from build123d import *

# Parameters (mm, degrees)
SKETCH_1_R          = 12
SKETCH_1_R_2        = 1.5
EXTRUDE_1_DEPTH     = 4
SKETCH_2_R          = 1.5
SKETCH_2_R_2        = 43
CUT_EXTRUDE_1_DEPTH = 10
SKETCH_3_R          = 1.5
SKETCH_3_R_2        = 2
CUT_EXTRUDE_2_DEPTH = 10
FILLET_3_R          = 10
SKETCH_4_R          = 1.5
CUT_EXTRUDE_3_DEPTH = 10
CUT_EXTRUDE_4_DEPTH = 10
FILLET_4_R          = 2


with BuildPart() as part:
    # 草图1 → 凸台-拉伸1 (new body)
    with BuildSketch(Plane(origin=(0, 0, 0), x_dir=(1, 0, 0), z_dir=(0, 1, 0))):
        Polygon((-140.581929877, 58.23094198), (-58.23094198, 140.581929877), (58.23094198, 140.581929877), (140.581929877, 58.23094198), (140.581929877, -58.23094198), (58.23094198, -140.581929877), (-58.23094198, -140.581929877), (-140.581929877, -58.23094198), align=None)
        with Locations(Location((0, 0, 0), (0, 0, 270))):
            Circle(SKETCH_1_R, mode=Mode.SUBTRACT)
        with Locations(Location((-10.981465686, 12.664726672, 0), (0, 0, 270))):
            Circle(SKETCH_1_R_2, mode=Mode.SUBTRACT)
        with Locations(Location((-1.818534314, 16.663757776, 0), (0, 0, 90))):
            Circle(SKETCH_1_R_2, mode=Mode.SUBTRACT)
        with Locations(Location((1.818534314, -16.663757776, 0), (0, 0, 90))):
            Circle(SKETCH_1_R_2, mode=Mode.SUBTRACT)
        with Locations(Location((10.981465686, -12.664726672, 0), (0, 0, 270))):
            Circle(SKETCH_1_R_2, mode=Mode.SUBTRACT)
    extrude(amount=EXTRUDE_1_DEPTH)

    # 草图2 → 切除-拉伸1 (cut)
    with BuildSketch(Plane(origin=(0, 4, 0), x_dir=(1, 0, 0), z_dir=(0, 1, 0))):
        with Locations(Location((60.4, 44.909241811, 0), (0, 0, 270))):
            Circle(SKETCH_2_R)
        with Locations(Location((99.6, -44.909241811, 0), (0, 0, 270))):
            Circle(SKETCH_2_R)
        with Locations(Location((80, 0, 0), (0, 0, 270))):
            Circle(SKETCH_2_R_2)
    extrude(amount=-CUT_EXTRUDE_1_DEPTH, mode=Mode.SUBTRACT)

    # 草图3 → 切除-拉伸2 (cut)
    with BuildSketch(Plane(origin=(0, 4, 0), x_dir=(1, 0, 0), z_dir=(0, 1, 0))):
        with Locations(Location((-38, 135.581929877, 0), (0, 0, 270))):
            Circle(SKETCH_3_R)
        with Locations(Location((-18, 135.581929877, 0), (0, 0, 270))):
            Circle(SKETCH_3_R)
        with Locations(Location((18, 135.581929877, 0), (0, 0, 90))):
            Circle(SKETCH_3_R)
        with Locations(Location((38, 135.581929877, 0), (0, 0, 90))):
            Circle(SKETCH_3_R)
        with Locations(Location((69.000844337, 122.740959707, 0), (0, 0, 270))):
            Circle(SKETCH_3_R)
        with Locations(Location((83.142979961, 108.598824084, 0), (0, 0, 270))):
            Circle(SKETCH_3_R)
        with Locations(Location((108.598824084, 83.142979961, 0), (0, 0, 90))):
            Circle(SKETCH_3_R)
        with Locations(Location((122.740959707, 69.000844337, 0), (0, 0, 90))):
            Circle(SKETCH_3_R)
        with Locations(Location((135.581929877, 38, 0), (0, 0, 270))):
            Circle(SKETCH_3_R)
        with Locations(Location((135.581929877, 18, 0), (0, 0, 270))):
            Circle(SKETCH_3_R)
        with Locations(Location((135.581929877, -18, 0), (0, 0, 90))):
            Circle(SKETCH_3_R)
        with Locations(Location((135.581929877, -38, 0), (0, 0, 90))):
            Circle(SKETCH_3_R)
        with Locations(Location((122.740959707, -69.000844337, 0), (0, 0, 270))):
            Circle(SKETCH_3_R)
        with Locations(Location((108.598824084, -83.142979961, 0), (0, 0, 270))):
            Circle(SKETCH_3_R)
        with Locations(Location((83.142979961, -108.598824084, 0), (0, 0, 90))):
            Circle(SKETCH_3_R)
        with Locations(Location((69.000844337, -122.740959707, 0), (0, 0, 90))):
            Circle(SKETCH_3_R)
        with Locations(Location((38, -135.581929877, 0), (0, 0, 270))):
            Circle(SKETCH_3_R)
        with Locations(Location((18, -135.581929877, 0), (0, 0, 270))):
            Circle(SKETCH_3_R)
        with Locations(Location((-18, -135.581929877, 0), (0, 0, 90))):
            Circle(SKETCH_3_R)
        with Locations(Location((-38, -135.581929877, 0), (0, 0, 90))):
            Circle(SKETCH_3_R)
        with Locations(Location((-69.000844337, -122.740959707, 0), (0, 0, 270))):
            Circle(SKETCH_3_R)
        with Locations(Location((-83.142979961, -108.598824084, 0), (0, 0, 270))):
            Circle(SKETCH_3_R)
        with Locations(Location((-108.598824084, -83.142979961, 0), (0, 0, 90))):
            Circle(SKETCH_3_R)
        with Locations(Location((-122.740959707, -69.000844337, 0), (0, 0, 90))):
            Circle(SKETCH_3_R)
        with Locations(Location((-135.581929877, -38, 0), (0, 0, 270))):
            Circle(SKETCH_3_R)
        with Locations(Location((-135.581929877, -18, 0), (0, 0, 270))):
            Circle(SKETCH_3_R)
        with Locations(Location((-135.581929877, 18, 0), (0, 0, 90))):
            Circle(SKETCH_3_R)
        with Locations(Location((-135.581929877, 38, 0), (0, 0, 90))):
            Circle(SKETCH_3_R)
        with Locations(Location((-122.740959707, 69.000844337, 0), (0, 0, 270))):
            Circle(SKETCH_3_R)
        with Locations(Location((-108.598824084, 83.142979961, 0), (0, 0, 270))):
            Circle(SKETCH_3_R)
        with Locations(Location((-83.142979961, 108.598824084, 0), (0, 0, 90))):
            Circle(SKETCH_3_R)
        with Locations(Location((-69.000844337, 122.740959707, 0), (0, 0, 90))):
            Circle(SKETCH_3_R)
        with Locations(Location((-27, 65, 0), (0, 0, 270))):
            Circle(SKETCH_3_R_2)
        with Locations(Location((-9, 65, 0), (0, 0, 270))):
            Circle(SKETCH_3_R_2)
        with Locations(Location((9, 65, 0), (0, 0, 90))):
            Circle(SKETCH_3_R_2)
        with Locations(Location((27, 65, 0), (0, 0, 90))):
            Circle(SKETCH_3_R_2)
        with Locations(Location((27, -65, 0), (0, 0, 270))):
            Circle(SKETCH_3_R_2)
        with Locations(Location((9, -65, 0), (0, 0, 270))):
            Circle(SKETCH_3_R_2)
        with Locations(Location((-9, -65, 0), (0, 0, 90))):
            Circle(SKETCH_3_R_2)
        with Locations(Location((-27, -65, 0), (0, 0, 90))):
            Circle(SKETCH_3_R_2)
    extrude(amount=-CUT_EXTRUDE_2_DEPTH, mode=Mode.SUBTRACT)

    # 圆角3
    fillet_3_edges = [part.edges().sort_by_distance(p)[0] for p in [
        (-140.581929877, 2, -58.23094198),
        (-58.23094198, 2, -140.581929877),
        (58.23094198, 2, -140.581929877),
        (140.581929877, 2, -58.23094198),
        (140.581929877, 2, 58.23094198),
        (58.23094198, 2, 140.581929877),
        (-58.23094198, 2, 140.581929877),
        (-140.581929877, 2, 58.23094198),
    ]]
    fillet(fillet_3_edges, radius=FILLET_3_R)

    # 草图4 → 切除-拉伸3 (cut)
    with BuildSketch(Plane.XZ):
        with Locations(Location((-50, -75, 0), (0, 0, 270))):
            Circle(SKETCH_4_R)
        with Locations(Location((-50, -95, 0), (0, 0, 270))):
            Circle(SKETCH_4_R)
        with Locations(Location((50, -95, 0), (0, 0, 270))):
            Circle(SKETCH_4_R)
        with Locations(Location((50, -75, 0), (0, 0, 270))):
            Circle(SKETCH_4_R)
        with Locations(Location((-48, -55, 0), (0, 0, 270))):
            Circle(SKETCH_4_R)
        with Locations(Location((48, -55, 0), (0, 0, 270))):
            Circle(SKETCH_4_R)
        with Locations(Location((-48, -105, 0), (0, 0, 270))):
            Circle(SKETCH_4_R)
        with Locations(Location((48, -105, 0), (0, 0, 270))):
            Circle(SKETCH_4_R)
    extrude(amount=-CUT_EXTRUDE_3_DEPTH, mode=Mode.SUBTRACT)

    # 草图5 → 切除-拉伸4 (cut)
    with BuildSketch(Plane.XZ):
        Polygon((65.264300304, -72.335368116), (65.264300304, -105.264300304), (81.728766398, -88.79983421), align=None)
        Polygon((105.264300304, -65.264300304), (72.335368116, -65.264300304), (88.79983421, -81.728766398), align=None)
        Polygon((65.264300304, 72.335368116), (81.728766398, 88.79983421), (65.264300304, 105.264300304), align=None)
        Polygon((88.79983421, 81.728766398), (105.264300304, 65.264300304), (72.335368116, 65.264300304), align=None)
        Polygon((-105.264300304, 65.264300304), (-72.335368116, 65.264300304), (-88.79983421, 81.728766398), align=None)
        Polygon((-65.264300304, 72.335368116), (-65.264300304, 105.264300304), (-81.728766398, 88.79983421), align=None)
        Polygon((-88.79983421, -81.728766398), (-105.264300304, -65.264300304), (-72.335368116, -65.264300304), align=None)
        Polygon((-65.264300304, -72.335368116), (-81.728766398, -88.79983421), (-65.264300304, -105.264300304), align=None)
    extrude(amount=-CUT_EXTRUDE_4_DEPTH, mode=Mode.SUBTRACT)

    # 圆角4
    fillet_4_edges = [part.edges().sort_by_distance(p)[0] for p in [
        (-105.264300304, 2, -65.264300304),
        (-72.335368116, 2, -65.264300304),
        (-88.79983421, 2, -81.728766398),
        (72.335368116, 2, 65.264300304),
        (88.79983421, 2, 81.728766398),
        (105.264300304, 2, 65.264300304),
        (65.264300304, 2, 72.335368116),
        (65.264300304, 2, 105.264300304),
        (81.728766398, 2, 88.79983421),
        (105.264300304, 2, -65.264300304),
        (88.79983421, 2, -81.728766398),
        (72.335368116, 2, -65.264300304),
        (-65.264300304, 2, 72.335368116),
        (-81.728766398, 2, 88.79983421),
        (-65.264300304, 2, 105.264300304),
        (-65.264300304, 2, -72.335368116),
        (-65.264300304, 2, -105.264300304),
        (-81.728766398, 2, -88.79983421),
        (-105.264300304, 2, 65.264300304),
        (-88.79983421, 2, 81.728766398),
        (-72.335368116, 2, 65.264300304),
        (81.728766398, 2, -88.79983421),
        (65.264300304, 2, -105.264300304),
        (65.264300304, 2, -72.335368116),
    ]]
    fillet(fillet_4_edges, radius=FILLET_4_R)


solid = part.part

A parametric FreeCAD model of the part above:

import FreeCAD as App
import Part
import Sketcher

V = App.Vector


def edges_at(feature, points):
    """Names of the edges that pass closest to the given points."""
    edges = feature.Shape.Edges
    near = lambda p: min(range(len(edges)), key=lambda i: edges[i].distToShape(Part.Vertex(*p))[0])
    return sorted({f"Edge{near(p) + 1}" for p in points})

doc = App.newDocument("Part")
params = doc.addObject("Spreadsheet::Sheet", "Params")
for row, (alias, value) in enumerate([
    ("sketch1_diameter", "3 mm"),
    ("sketch1_diameter2", "24 mm"),
    ("pad1_length", "4 mm"),
    ("sketch2_diameter", "3 mm"),
    ("sketch2_diameter2", "86 mm"),
    ("pocket1_length", "10 mm"),
    ("sketch3_diameter", "3 mm"),
    ("sketch3_diameter2", "4 mm"),
    ("pocket2_length", "10 mm"),
    ("fillet_radius", "10 mm"),
    ("sketch4_diameter", "3 mm"),
    ("pocket3_length", "10 mm"),
    ("pocket4_length", "10 mm"),
    ("fillet2_radius", "2 mm"),
], start=1):
    params.set(f"A{row}", alias)
    params.set(f"B{row}", "=" + value)
    params.setAlias(f"B{row}", alias)

body = doc.addObject("PartDesign::Body", "Body")

sketch1 = body.newObject("Sketcher::SketchObject", "Sketch")
sketch1.AttachmentSupport = (doc.getObject("XZ_Plane"), [""])
sketch1.MapMode = "FlatFace"
sketch1.addGeometry(Part.LineSegment(V(-58.2, -140.6, 0), V(-140.6, -58.2, 0)), False)
sketch1.addGeometry(Part.LineSegment(V(-140.6, -58.2, 0), V(-140.6, 58.2, 0)), False)
sketch1.addGeometry(Part.LineSegment(V(-140.6, 58.2, 0), V(-58.2, 140.6, 0)), False)
sketch1.addGeometry(Part.LineSegment(V(-58.2, 140.6, 0), V(58.2, 140.6, 0)), False)
sketch1.addGeometry(Part.LineSegment(V(58.2, 140.6, 0), V(140.6, 58.2, 0)), False)
sketch1.addGeometry(Part.LineSegment(V(140.6, 58.2, 0), V(140.6, -58.2, 0)), False)
sketch1.addGeometry(Part.LineSegment(V(140.6, -58.2, 0), V(58.2, -140.6, 0)), False)
sketch1.addGeometry(Part.LineSegment(V(58.2, -140.6, 0), V(-58.2, -140.6, 0)), False)
sketch1.addGeometry(Part.Circle(V(11, 12.7, 0), V(0, 0, 1), 1.5), False)
sketch1.addGeometry(Part.Circle(V(1.8, 16.7, 0), V(0, 0, 1), 1.5), False)
sketch1.addGeometry(Part.Circle(V(0, 0, 0), V(0, 0, 1), 12), False)
sketch1.addGeometry(Part.Circle(V(-1.8, -16.7, 0), V(0, 0, 1), 1.5), False)
sketch1.addGeometry(Part.Circle(V(-11, -12.7, 0), V(0, 0, 1), 1.5), False)
sketch1.addConstraint(Sketcher.Constraint("Coincident", 0, 2, 1, 1))
sketch1.addConstraint(Sketcher.Constraint("Coincident", 1, 2, 2, 1))
sketch1.addConstraint(Sketcher.Constraint("Coincident", 2, 2, 3, 1))
sketch1.addConstraint(Sketcher.Constraint("Coincident", 3, 2, 4, 1))
sketch1.addConstraint(Sketcher.Constraint("Coincident", 4, 2, 5, 1))
sketch1.addConstraint(Sketcher.Constraint("Coincident", 5, 2, 6, 1))
sketch1.addConstraint(Sketcher.Constraint("Coincident", 6, 2, 7, 1))
sketch1.addConstraint(Sketcher.Constraint("Coincident", 7, 2, 0, 1))
sketch1.addConstraint(Sketcher.Constraint("Vertical", 1))
sketch1.addConstraint(Sketcher.Constraint("Horizontal", 3))
sketch1.addConstraint(Sketcher.Constraint("Vertical", 5))
sketch1.addConstraint(Sketcher.Constraint("Horizontal", 7))
sketch1.addConstraint(Sketcher.Constraint("Coincident", 10, 3, -1, 1))
sketch1.addConstraint(Sketcher.Constraint("Equal", 8, 9))
sketch1.addConstraint(Sketcher.Constraint("Equal", 9, 11))
sketch1.addConstraint(Sketcher.Constraint("Equal", 11, 12))
sketch1.addConstraint(Sketcher.Constraint("Symmetric", 9, 3, 11, 3, -1, 1))
sketch1.addConstraint(Sketcher.Constraint("Symmetric", 8, 3, 12, 3, -1, 1))
sketch1.addConstraint(Sketcher.Constraint("Symmetric", 0, 2, 4, 2, -1, 1))
sketch1.addConstraint(Sketcher.Constraint("Symmetric", 2, 2, 6, 2, -1, 1))
sketch1.addConstraint(Sketcher.Constraint("Perpendicular", 0, 2))
sketch1.addConstraint(Sketcher.Constraint("Perpendicular", 2, 4))
sketch1.addConstraint(Sketcher.Constraint("Perpendicular", 4, 6))
sketch1.addConstraint(Sketcher.Constraint("Horizontal", 1, 2, 4, 2))
sketch1.addConstraint(Sketcher.Constraint("Vertical", 3, 2, 6, 2))
sketch1.addConstraint(Sketcher.Constraint("Equal", 7, 1))
sketch1.addConstraint(Sketcher.Constraint("Diameter", 8, 3.0))
sketch1.addConstraint(Sketcher.Constraint("Diameter", 10, 24.0))
sketch1.addConstraint(Sketcher.Constraint("DistanceX", 11, 3, 8, 3, 12.8))
sketch1.addConstraint(Sketcher.Constraint("DistanceY", 0, 2, 9, 3, 74.8947))
sketch1.addConstraint(Sketcher.Constraint("DistanceX", 3, 1, 3, 2, 116.461884))
sketch1.addConstraint(Sketcher.Constraint("DistanceX", 0, 2, -1, 1, 140.58193))
sketch1.addConstraint(Sketcher.Constraint("DistanceX", 9, 3, 8, 3, 9.162931))
sketch1.addConstraint(Sketcher.Constraint("DistanceY", 8, 3, 9, 3, 3.999031))
sketch1.setExpression("Constraints[26]", "Params.sketch1_diameter")
sketch1.setExpression("Constraints[27]", "Params.sketch1_diameter2")
pad1 = body.newObject("PartDesign::Pad", "Pad")
pad1.Profile = sketch1
pad1.setExpression("Length", "Params.pad1_length")
pad1.Reversed = True

sketch2 = body.newObject("Sketcher::SketchObject", "Sketch001")
sketch2.AttachmentSupport = (doc.getObject("XZ_Plane"), [""])
sketch2.MapMode = "FlatFace"
sketch2.AttachmentOffset = App.Placement(V(0, 0, -4), App.Rotation())
sketch2.addGeometry(Part.Circle(V(60.4, -44.9, 0), V(0, 0, 1), 1.5), False)
sketch2.addGeometry(Part.Circle(V(99.6, 44.9, 0), V(0, 0, 1), 1.5), False)
sketch2.addGeometry(Part.Circle(V(80, 0, 0), V(0, 0, 1), 43), False)
sketch2.addConstraint(Sketcher.Constraint("Equal", 0, 1))
sketch2.addConstraint(Sketcher.Constraint("PointOnObject", 2, 3, -1))
sketch2.addConstraint(Sketcher.Constraint("Diameter", 0, 3.0))
sketch2.addConstraint(Sketcher.Constraint("Diameter", 2, 86.0))
sketch2.addConstraint(Sketcher.Constraint("DistanceX", -1, 1, 2, 3, 80.0))
sketch2.addConstraint(Sketcher.Constraint("DistanceX", -1, 1, 0, 3, 60.4))
sketch2.addConstraint(Sketcher.Constraint("DistanceX", -1, 1, 1, 3, 99.6))
sketch2.addConstraint(Sketcher.Constraint("DistanceY", 0, 3, -1, 1, 44.909242))
sketch2.addConstraint(Sketcher.Constraint("DistanceY", -1, 1, 1, 3, 44.909242))
sketch2.setExpression("Constraints[2]", "Params.sketch2_diameter")
sketch2.setExpression("Constraints[3]", "Params.sketch2_diameter2")
pocket1 = body.newObject("PartDesign::Pocket", "Pocket")
pocket1.Profile = sketch2
pocket1.setExpression("Length", "Params.pocket1_length")
pocket1.Reversed = True

sketch3 = body.newObject("Sketcher::SketchObject", "Sketch002")
sketch3.AttachmentSupport = (doc.getObject("XZ_Plane"), [""])
sketch3.MapMode = "FlatFace"
sketch3.AttachmentOffset = App.Placement(V(0, 0, -4), App.Rotation())
sketch3.addGeometry(Part.Circle(V(-38, -135.6, 0), V(0, 0, 1), 1.5), False)
sketch3.addGeometry(Part.Circle(V(-18, -135.6, 0), V(0, 0, 1), 1.5), False)
sketch3.addGeometry(Part.Circle(V(18, -135.6, 0), V(0, 0, 1), 1.5), False)
sketch3.addGeometry(Part.Circle(V(38, -135.6, 0), V(0, 0, 1), 1.5), False)
sketch3.addGeometry(Part.Circle(V(69, -122.7, 0), V(0, 0, 1), 1.5), False)
sketch3.addGeometry(Part.Circle(V(83.1, -108.6, 0), V(0, 0, 1), 1.5), False)
sketch3.addGeometry(Part.Circle(V(108.6, -83.1, 0), V(0, 0, 1), 1.5), False)
sketch3.addGeometry(Part.Circle(V(122.7, -69, 0), V(0, 0, 1), 1.5), False)
sketch3.addGeometry(Part.Circle(V(135.6, -38, 0), V(0, 0, 1), 1.5), False)
sketch3.addGeometry(Part.Circle(V(135.6, -18, 0), V(0, 0, 1), 1.5), False)
sketch3.addGeometry(Part.Circle(V(135.6, 18, 0), V(0, 0, 1), 1.5), False)
sketch3.addGeometry(Part.Circle(V(135.6, 38, 0), V(0, 0, 1), 1.5), False)
sketch3.addGeometry(Part.Circle(V(122.7, 69, 0), V(0, 0, 1), 1.5), False)
sketch3.addGeometry(Part.Circle(V(108.6, 83.1, 0), V(0, 0, 1), 1.5), False)
sketch3.addGeometry(Part.Circle(V(83.1, 108.6, 0), V(0, 0, 1), 1.5), False)
sketch3.addGeometry(Part.Circle(V(69, 122.7, 0), V(0, 0, 1), 1.5), False)
sketch3.addGeometry(Part.Circle(V(38, 135.6, 0), V(0, 0, 1), 1.5), False)
sketch3.addGeometry(Part.Circle(V(18, 135.6, 0), V(0, 0, 1), 1.5), False)
sketch3.addGeometry(Part.Circle(V(-18, 135.6, 0), V(0, 0, 1), 1.5), False)
sketch3.addGeometry(Part.Circle(V(-38, 135.6, 0), V(0, 0, 1), 1.5), False)
sketch3.addGeometry(Part.Circle(V(-69, 122.7, 0), V(0, 0, 1), 1.5), False)
sketch3.addGeometry(Part.Circle(V(-83.1, 108.6, 0), V(0, 0, 1), 1.5), False)
sketch3.addGeometry(Part.Circle(V(-108.6, 83.1, 0), V(0, 0, 1), 1.5), False)
sketch3.addGeometry(Part.Circle(V(-122.7, 69, 0), V(0, 0, 1), 1.5), False)
sketch3.addGeometry(Part.Circle(V(-135.6, 38, 0), V(0, 0, 1), 1.5), False)
sketch3.addGeometry(Part.Circle(V(-135.6, 18, 0), V(0, 0, 1), 1.5), False)
sketch3.addGeometry(Part.Circle(V(-135.6, -18, 0), V(0, 0, 1), 1.5), False)
sketch3.addGeometry(Part.Circle(V(-135.6, -38, 0), V(0, 0, 1), 1.5), False)
sketch3.addGeometry(Part.Circle(V(-122.7, -69, 0), V(0, 0, 1), 1.5), False)
sketch3.addGeometry(Part.Circle(V(-108.6, -83.1, 0), V(0, 0, 1), 1.5), False)
sketch3.addGeometry(Part.Circle(V(-83.1, -108.6, 0), V(0, 0, 1), 1.5), False)
sketch3.addGeometry(Part.Circle(V(-69, -122.7, 0), V(0, 0, 1), 1.5), False)
sketch3.addGeometry(Part.Circle(V(-27, -65, 0), V(0, 0, 1), 2), False)
sketch3.addGeometry(Part.Circle(V(-9, -65, 0), V(0, 0, 1), 2), False)
sketch3.addGeometry(Part.Circle(V(9, -65, 0), V(0, 0, 1), 2), False)
sketch3.addGeometry(Part.Circle(V(27, -65, 0), V(0, 0, 1), 2), False)
sketch3.addGeometry(Part.Circle(V(27, 65, 0), V(0, 0, 1), 2), False)
sketch3.addGeometry(Part.Circle(V(9, 65, 0), V(0, 0, 1), 2), False)
sketch3.addGeometry(Part.Circle(V(-9, 65, 0), V(0, 0, 1), 2), False)
sketch3.addGeometry(Part.Circle(V(-27, 65, 0), V(0, 0, 1), 2), False)
sketch3.addConstraint(Sketcher.Constraint("Equal", 0, 1))
sketch3.addConstraint(Sketcher.Constraint("Equal", 1, 2))
sketch3.addConstraint(Sketcher.Constraint("Equal", 2, 3))
sketch3.addConstraint(Sketcher.Constraint("Equal", 3, 4))
sketch3.addConstraint(Sketcher.Constraint("Equal", 4, 5))
sketch3.addConstraint(Sketcher.Constraint("Equal", 5, 6))
sketch3.addConstraint(Sketcher.Constraint("Equal", 6, 7))
sketch3.addConstraint(Sketcher.Constraint("Equal", 7, 8))
sketch3.addConstraint(Sketcher.Constraint("Equal", 8, 9))
sketch3.addConstraint(Sketcher.Constraint("Equal", 9, 10))
sketch3.addConstraint(Sketcher.Constraint("Equal", 10, 11))
sketch3.addConstraint(Sketcher.Constraint("Equal", 11, 12))
sketch3.addConstraint(Sketcher.Constraint("Equal", 12, 13))
sketch3.addConstraint(Sketcher.Constraint("Equal", 13, 14))
sketch3.addConstraint(Sketcher.Constraint("Equal", 14, 15))
sketch3.addConstraint(Sketcher.Constraint("Equal", 15, 16))
sketch3.addConstraint(Sketcher.Constraint("Equal", 16, 17))
sketch3.addConstraint(Sketcher.Constraint("Equal", 17, 18))
sketch3.addConstraint(Sketcher.Constraint("Equal", 18, 19))
sketch3.addConstraint(Sketcher.Constraint("Equal", 19, 20))
sketch3.addConstraint(Sketcher.Constraint("Equal", 20, 21))
sketch3.addConstraint(Sketcher.Constraint("Equal", 21, 22))
sketch3.addConstraint(Sketcher.Constraint("Equal", 22, 23))
sketch3.addConstraint(Sketcher.Constraint("Equal", 23, 24))
sketch3.addConstraint(Sketcher.Constraint("Equal", 24, 25))
sketch3.addConstraint(Sketcher.Constraint("Equal", 25, 26))
sketch3.addConstraint(Sketcher.Constraint("Equal", 26, 27))
sketch3.addConstraint(Sketcher.Constraint("Equal", 27, 28))
sketch3.addConstraint(Sketcher.Constraint("Equal", 28, 29))
sketch3.addConstraint(Sketcher.Constraint("Equal", 29, 30))
sketch3.addConstraint(Sketcher.Constraint("Equal", 30, 31))
sketch3.addConstraint(Sketcher.Constraint("Equal", 32, 33))
sketch3.addConstraint(Sketcher.Constraint("Equal", 33, 34))
sketch3.addConstraint(Sketcher.Constraint("Equal", 34, 35))
sketch3.addConstraint(Sketcher.Constraint("Equal", 35, 36))
sketch3.addConstraint(Sketcher.Constraint("Equal", 36, 37))
sketch3.addConstraint(Sketcher.Constraint("Equal", 37, 38))
sketch3.addConstraint(Sketcher.Constraint("Equal", 38, 39))
sketch3.addConstraint(Sketcher.Constraint("Symmetric", 0, 3, 16, 3, -1, 1))
sketch3.addConstraint(Sketcher.Constraint("Symmetric", 1, 3, 17, 3, -1, 1))
sketch3.addConstraint(Sketcher.Constraint("Symmetric", 2, 3, 18, 3, -1, 1))
sketch3.addConstraint(Sketcher.Constraint("Symmetric", 3, 3, 19, 3, -1, 1))
sketch3.addConstraint(Sketcher.Constraint("Symmetric", 4, 3, 20, 3, -1, 1))
sketch3.addConstraint(Sketcher.Constraint("Symmetric", 5, 3, 21, 3, -1, 1))
sketch3.addConstraint(Sketcher.Constraint("Symmetric", 6, 3, 22, 3, -1, 1))
sketch3.addConstraint(Sketcher.Constraint("Symmetric", 7, 3, 23, 3, -1, 1))
sketch3.addConstraint(Sketcher.Constraint("Symmetric", 8, 3, 24, 3, -1, 1))
sketch3.addConstraint(Sketcher.Constraint("Symmetric", 9, 3, 25, 3, -1, 1))
sketch3.addConstraint(Sketcher.Constraint("Symmetric", 10, 3, 26, 3, -1, 1))
sketch3.addConstraint(Sketcher.Constraint("Symmetric", 11, 3, 27, 3, -1, 1))
sketch3.addConstraint(Sketcher.Constraint("Symmetric", 12, 3, 28, 3, -1, 1))
sketch3.addConstraint(Sketcher.Constraint("Symmetric", 13, 3, 29, 3, -1, 1))
sketch3.addConstraint(Sketcher.Constraint("Symmetric", 14, 3, 30, 3, -1, 1))
sketch3.addConstraint(Sketcher.Constraint("Symmetric", 15, 3, 31, 3, -1, 1))
sketch3.addConstraint(Sketcher.Constraint("Symmetric", 32, 3, 36, 3, -1, 1))
sketch3.addConstraint(Sketcher.Constraint("Symmetric", 33, 3, 37, 3, -1, 1))
sketch3.addConstraint(Sketcher.Constraint("Symmetric", 34, 3, 38, 3, -1, 1))
sketch3.addConstraint(Sketcher.Constraint("Symmetric", 35, 3, 39, 3, -1, 1))
sketch3.addConstraint(Sketcher.Constraint("Symmetric", 1, 3, 2, 3, -2))
sketch3.addConstraint(Sketcher.Constraint("Symmetric", 0, 3, 3, 3, -2))
sketch3.addConstraint(Sketcher.Constraint("Symmetric", 15, 3, 20, 3, -2))
sketch3.addConstraint(Sketcher.Constraint("Symmetric", 14, 3, 21, 3, -2))
sketch3.addConstraint(Sketcher.Constraint("Symmetric", 13, 3, 22, 3, -2))
sketch3.addConstraint(Sketcher.Constraint("Symmetric", 12, 3, 23, 3, -2))
sketch3.addConstraint(Sketcher.Constraint("Symmetric", 11, 3, 24, 3, -2))
sketch3.addConstraint(Sketcher.Constraint("Symmetric", 10, 3, 25, 3, -2))
sketch3.addConstraint(Sketcher.Constraint("Symmetric", 33, 3, 34, 3, -2))
sketch3.addConstraint(Sketcher.Constraint("Symmetric", 32, 3, 35, 3, -2))
sketch3.addConstraint(Sketcher.Constraint("Horizontal", 0, 3, 1, 3))
sketch3.addConstraint(Sketcher.Constraint("Horizontal", 32, 3, 33, 3))
sketch3.addConstraint(Sketcher.Constraint("Vertical", 8, 3, 9, 3))
sketch3.addConstraint(Sketcher.Constraint("Diameter", 0, 3.0))
sketch3.addConstraint(Sketcher.Constraint("Diameter", 32, 4.0))
sketch3.addConstraint(Sketcher.Constraint("DistanceX", 0, 3, -1, 1, 38.0))
sketch3.addConstraint(Sketcher.Constraint("DistanceX", 1, 3, -1, 1, 18.0))
sketch3.addConstraint(Sketcher.Constraint("DistanceY", 8, 3, -1, 1, 38.0))
sketch3.addConstraint(Sketcher.Constraint("DistanceY", 9, 3, -1, 1, 18.0))
sketch3.addConstraint(Sketcher.Constraint("DistanceX", 32, 3, -1, 1, 27.0))
sketch3.addConstraint(Sketcher.Constraint("DistanceY", 32, 3, -1, 1, 65.0))
sketch3.addConstraint(Sketcher.Constraint("DistanceX", 33, 3, -1, 1, 9.0))
sketch3.addConstraint(Sketcher.Constraint("DistanceY", 0, 3, -1, 1, 135.58193))
sketch3.addConstraint(Sketcher.Constraint("DistanceY", 4, 3, -1, 1, 122.74096))
sketch3.addConstraint(Sketcher.Constraint("DistanceX", -1, 1, 5, 3, 83.14298))
sketch3.addConstraint(Sketcher.Constraint("DistanceY", 6, 3, -1, 1, 83.14298))
sketch3.addConstraint(Sketcher.Constraint("DistanceX", -1, 1, 7, 3, 122.74096))
sketch3.addConstraint(Sketcher.Constraint("DistanceX", -1, 1, 8, 3, 135.58193))
sketch3.addConstraint(Sketcher.Constraint("DistanceX", 4, 3, 6, 3, 39.59798))
sketch3.addConstraint(Sketcher.Constraint("DistanceY", 5, 3, 7, 3, 39.59798))
sketch3.addConstraint(Sketcher.Constraint("DistanceY", 7, 3, 12, 3, 138.001689))
sketch3.addConstraint(Sketcher.Constraint("DistanceX", 20, 3, 15, 3, 138.001689))
sketch3.setExpression("Constraints[71]", "Params.sketch3_diameter")
sketch3.setExpression("Constraints[72]", "Params.sketch3_diameter2")
pocket2 = body.newObject("PartDesign::Pocket", "Pocket001")
pocket2.Profile = sketch3
pocket2.setExpression("Length", "Params.pocket2_length")
pocket2.Reversed = True
doc.recompute()

fillet = body.newObject("PartDesign::Fillet", "Fillet")
fillet.Base = (pocket2, edges_at(pocket2, [
    (-140.582, 2, -58.231),
    (-58.231, 2, -140.582),
    (58.231, 2, -140.582),
    (140.582, 2, -58.231),
    (140.582, 2, 58.231),
    (58.231, 2, 140.582),
    (-58.231, 2, 140.582),
    (-140.582, 2, 58.231),
]))
fillet.setExpression("Radius", "Params.fillet_radius")

sketch4 = body.newObject("Sketcher::SketchObject", "Sketch003")
sketch4.AttachmentSupport = (doc.getObject("XZ_Plane"), [""])
sketch4.MapMode = "FlatFace"
sketch4.addGeometry(Part.Circle(V(-50, -75, 0), V(0, 0, 1), 1.5), False)
sketch4.addGeometry(Part.Circle(V(-50, -95, 0), V(0, 0, 1), 1.5), False)
sketch4.addGeometry(Part.Circle(V(50, -95, 0), V(0, 0, 1), 1.5), False)
sketch4.addGeometry(Part.Circle(V(50, -75, 0), V(0, 0, 1), 1.5), False)
sketch4.addGeometry(Part.Circle(V(-48, -55, 0), V(0, 0, 1), 1.5), False)
sketch4.addGeometry(Part.Circle(V(48, -55, 0), V(0, 0, 1), 1.5), False)
sketch4.addGeometry(Part.Circle(V(-48, -105, 0), V(0, 0, 1), 1.5), False)
sketch4.addGeometry(Part.Circle(V(48, -105, 0), V(0, 0, 1), 1.5), False)
sketch4.addConstraint(Sketcher.Constraint("Equal", 0, 1))
sketch4.addConstraint(Sketcher.Constraint("Equal", 1, 2))
sketch4.addConstraint(Sketcher.Constraint("Equal", 2, 3))
sketch4.addConstraint(Sketcher.Constraint("Equal", 3, 4))
sketch4.addConstraint(Sketcher.Constraint("Equal", 4, 5))
sketch4.addConstraint(Sketcher.Constraint("Equal", 5, 6))
sketch4.addConstraint(Sketcher.Constraint("Equal", 6, 7))
sketch4.addConstraint(Sketcher.Constraint("Symmetric", 1, 3, 2, 3, -2))
sketch4.addConstraint(Sketcher.Constraint("Symmetric", 0, 3, 3, 3, -2))
sketch4.addConstraint(Sketcher.Constraint("Symmetric", 4, 3, 5, 3, -2))
sketch4.addConstraint(Sketcher.Constraint("Symmetric", 6, 3, 7, 3, -2))
sketch4.addConstraint(Sketcher.Constraint("Vertical", 0, 3, 1, 3))
sketch4.addConstraint(Sketcher.Constraint("Vertical", 4, 3, 6, 3))
sketch4.addConstraint(Sketcher.Constraint("Diameter", 0, 3.0))
sketch4.addConstraint(Sketcher.Constraint("DistanceX", 0, 3, -1, 1, 50.0))
sketch4.addConstraint(Sketcher.Constraint("DistanceY", 0, 3, -1, 1, 75.0))
sketch4.addConstraint(Sketcher.Constraint("DistanceY", 1, 3, -1, 1, 95.0))
sketch4.addConstraint(Sketcher.Constraint("DistanceX", 4, 3, -1, 1, 48.0))
sketch4.addConstraint(Sketcher.Constraint("DistanceY", 4, 3, -1, 1, 55.0))
sketch4.addConstraint(Sketcher.Constraint("DistanceY", 6, 3, -1, 1, 105.0))
sketch4.setExpression("Constraints[13]", "Params.sketch4_diameter")
pocket3 = body.newObject("PartDesign::Pocket", "Pocket002")
pocket3.Profile = sketch4
pocket3.setExpression("Length", "Params.pocket3_length")

sketch5 = body.newObject("Sketcher::SketchObject", "Sketch004")
sketch5.AttachmentSupport = (doc.getObject("XZ_Plane"), [""])
sketch5.MapMode = "FlatFace"
sketch5.addGeometry(Part.LineSegment(V(65, -72, 0), V(65, -105, 0)), False)
sketch5.addGeometry(Part.LineSegment(V(65, -105, 0), V(82, -89, 0)), False)
sketch5.addGeometry(Part.LineSegment(V(82, -89, 0), V(65, -72, 0)), False)
sketch5.addGeometry(Part.LineSegment(V(105, -65, 0), V(72, -65, 0)), False)
sketch5.addGeometry(Part.LineSegment(V(72, -65, 0), V(89, -82, 0)), False)
sketch5.addGeometry(Part.LineSegment(V(89, -82, 0), V(105, -65, 0)), False)
sketch5.addGeometry(Part.LineSegment(V(65, 72, 0), V(82, 89, 0)), False)
sketch5.addGeometry(Part.LineSegment(V(82, 89, 0), V(65, 105, 0)), False)
sketch5.addGeometry(Part.LineSegment(V(65, 105, 0), V(65, 72, 0)), False)
sketch5.addGeometry(Part.LineSegment(V(105, 65, 0), V(89, 82, 0)), False)
sketch5.addGeometry(Part.LineSegment(V(89, 82, 0), V(72, 65, 0)), False)
sketch5.addGeometry(Part.LineSegment(V(72, 65, 0), V(105, 65, 0)), False)
sketch5.addGeometry(Part.LineSegment(V(-105, 65, 0), V(-72, 65, 0)), False)
sketch5.addGeometry(Part.LineSegment(V(-72, 65, 0), V(-89, 82, 0)), False)
sketch5.addGeometry(Part.LineSegment(V(-89, 82, 0), V(-105, 65, 0)), False)
sketch5.addGeometry(Part.LineSegment(V(-65, 72, 0), V(-65, 105, 0)), False)
sketch5.addGeometry(Part.LineSegment(V(-65, 105, 0), V(-82, 89, 0)), False)
sketch5.addGeometry(Part.LineSegment(V(-82, 89, 0), V(-65, 72, 0)), False)
sketch5.addGeometry(Part.LineSegment(V(-105, -65, 0), V(-89, -82, 0)), False)
sketch5.addGeometry(Part.LineSegment(V(-89, -82, 0), V(-72, -65, 0)), False)
sketch5.addGeometry(Part.LineSegment(V(-72, -65, 0), V(-105, -65, 0)), False)
sketch5.addGeometry(Part.LineSegment(V(-65, -72, 0), V(-82, -89, 0)), False)
sketch5.addGeometry(Part.LineSegment(V(-82, -89, 0), V(-65, -105, 0)), False)
sketch5.addGeometry(Part.LineSegment(V(-65, -105, 0), V(-65, -72, 0)), False)
sketch5.addConstraint(Sketcher.Constraint("Coincident", 0, 2, 1, 1))
sketch5.addConstraint(Sketcher.Constraint("Coincident", 1, 2, 2, 1))
sketch5.addConstraint(Sketcher.Constraint("Coincident", 2, 2, 0, 1))
sketch5.addConstraint(Sketcher.Constraint("Coincident", 3, 2, 4, 1))
sketch5.addConstraint(Sketcher.Constraint("Coincident", 4, 2, 5, 1))
sketch5.addConstraint(Sketcher.Constraint("Coincident", 5, 2, 3, 1))
sketch5.addConstraint(Sketcher.Constraint("Coincident", 6, 2, 7, 1))
sketch5.addConstraint(Sketcher.Constraint("Coincident", 7, 2, 8, 1))
sketch5.addConstraint(Sketcher.Constraint("Coincident", 8, 2, 6, 1))
sketch5.addConstraint(Sketcher.Constraint("Coincident", 9, 2, 10, 1))
sketch5.addConstraint(Sketcher.Constraint("Coincident", 10, 2, 11, 1))
sketch5.addConstraint(Sketcher.Constraint("Coincident", 11, 2, 9, 1))
sketch5.addConstraint(Sketcher.Constraint("Coincident", 12, 2, 13, 1))
sketch5.addConstraint(Sketcher.Constraint("Coincident", 13, 2, 14, 1))
sketch5.addConstraint(Sketcher.Constraint("Coincident", 14, 2, 12, 1))
sketch5.addConstraint(Sketcher.Constraint("Coincident", 15, 2, 16, 1))
sketch5.addConstraint(Sketcher.Constraint("Coincident", 16, 2, 17, 1))
sketch5.addConstraint(Sketcher.Constraint("Coincident", 17, 2, 15, 1))
sketch5.addConstraint(Sketcher.Constraint("Coincident", 18, 2, 19, 1))
sketch5.addConstraint(Sketcher.Constraint("Coincident", 19, 2, 20, 1))
sketch5.addConstraint(Sketcher.Constraint("Coincident", 20, 2, 18, 1))
sketch5.addConstraint(Sketcher.Constraint("Coincident", 21, 2, 22, 1))
sketch5.addConstraint(Sketcher.Constraint("Coincident", 22, 2, 23, 1))
sketch5.addConstraint(Sketcher.Constraint("Coincident", 23, 2, 21, 1))
sketch5.addConstraint(Sketcher.Constraint("Vertical", 0))
sketch5.addConstraint(Sketcher.Constraint("Horizontal", 3))
sketch5.addConstraint(Sketcher.Constraint("Vertical", 8))
sketch5.addConstraint(Sketcher.Constraint("Horizontal", 11))
sketch5.addConstraint(Sketcher.Constraint("Horizontal", 12))
sketch5.addConstraint(Sketcher.Constraint("Vertical", 15))
sketch5.addConstraint(Sketcher.Constraint("Horizontal", 20))
sketch5.addConstraint(Sketcher.Constraint("Vertical", 23))
sketch5.addConstraint(Sketcher.Constraint("Symmetric", 3, 2, 12, 2, -1, 1))
sketch5.addConstraint(Sketcher.Constraint("Symmetric", 4, 2, 13, 2, -1, 1))
sketch5.addConstraint(Sketcher.Constraint("Symmetric", 0, 2, 15, 2, -1, 1))
sketch5.addConstraint(Sketcher.Constraint("Symmetric", 1, 2, 16, 2, -1, 1))
sketch5.addConstraint(Sketcher.Constraint("Symmetric", 9, 2, 18, 2, -1, 1))
sketch5.addConstraint(Sketcher.Constraint("Symmetric", 10, 2, 19, 2, -1, 1))
sketch5.addConstraint(Sketcher.Constraint("Symmetric", 6, 2, 21, 2, -1, 1))
sketch5.addConstraint(Sketcher.Constraint("Symmetric", 7, 2, 22, 2, -1, 1))
sketch5.addConstraint(Sketcher.Constraint("Symmetric", 10, 2, 12, 2, -2))
sketch5.addConstraint(Sketcher.Constraint("Symmetric", 9, 2, 13, 2, -2))
sketch5.addConstraint(Sketcher.Constraint("Symmetric", 7, 2, 15, 2, -2))
sketch5.addConstraint(Sketcher.Constraint("Symmetric", 6, 2, 16, 2, -2))
sketch5.addConstraint(Sketcher.Constraint("Perpendicular", 1, 2))
sketch5.addConstraint(Sketcher.Constraint("Parallel", 2, 4))
sketch5.addConstraint(Sketcher.Constraint("Perpendicular", 4, 5))
sketch5.addConstraint(Sketcher.Constraint("Parallel", 5, 6))
sketch5.addConstraint(Sketcher.Constraint("Perpendicular", 6, 7))
sketch5.addConstraint(Sketcher.Constraint("Parallel", 7, 9))
sketch5.addConstraint(Sketcher.Constraint("Perpendicular", 13, 14))
sketch5.addConstraint(Sketcher.Constraint("Perpendicular", 16, 17))
sketch5.addConstraint(Sketcher.Constraint("Parallel", 17, 18))
sketch5.addConstraint(Sketcher.Constraint("Parallel", 19, 21))
sketch5.addConstraint(Sketcher.Constraint("Equal", 20, 0))
sketch5.addConstraint(Sketcher.Constraint("DistanceY", 0, 2, 3, 2, 40.0))
sketch5.addConstraint(Sketcher.Constraint("DistanceX", 2, 2, 5, 2, 40.0))
sketch5.addConstraint(Sketcher.Constraint("DistanceX", -1, 1, 0, 2, 65.2643))
sketch5.addConstraint(Sketcher.Constraint("DistanceY", 0, 2, -1, 1, 105.2643))
sketch5.addConstraint(Sketcher.Constraint("DistanceX", 3, 2, 1, 2, 9.393398))
pocket4 = body.newObject("PartDesign::Pocket", "Pocket003")
pocket4.Profile = sketch5
pocket4.setExpression("Length", "Params.pocket4_length")
doc.recompute()

fillet2 = body.newObject("PartDesign::Fillet", "Fillet001")
fillet2.Base = (pocket4, edges_at(pocket4, [
    (-105.264, 2, -65.264),
    (-72.335, 2, -65.264),
    (-88.8, 2, -81.729),
    (72.335, 2, 65.264),
    (88.8, 2, 81.729),
    (105.264, 2, 65.264),
    (65.264, 2, 72.335),
    (65.264, 2, 105.264),
    (81.729, 2, 88.8),
    (105.264, 2, -65.264),
    (88.8, 2, -81.729),
    (72.335, 2, -65.264),
    (-65.264, 2, 72.335),
    (-81.729, 2, 88.8),
    (-65.264, 2, 105.264),
    (-65.264, 2, -72.335),
    (-65.264, 2, -105.264),
    (-81.729, 2, -88.8),
    (-105.264, 2, 65.264),
    (-88.8, 2, 81.729),
    (-72.335, 2, 65.264),
    (81.729, 2, -88.8),
    (65.264, 2, -105.264),
    (65.264, 2, -72.335),
]))
fillet2.setExpression("Radius", "Params.fillet2_radius")

doc.recompute()
